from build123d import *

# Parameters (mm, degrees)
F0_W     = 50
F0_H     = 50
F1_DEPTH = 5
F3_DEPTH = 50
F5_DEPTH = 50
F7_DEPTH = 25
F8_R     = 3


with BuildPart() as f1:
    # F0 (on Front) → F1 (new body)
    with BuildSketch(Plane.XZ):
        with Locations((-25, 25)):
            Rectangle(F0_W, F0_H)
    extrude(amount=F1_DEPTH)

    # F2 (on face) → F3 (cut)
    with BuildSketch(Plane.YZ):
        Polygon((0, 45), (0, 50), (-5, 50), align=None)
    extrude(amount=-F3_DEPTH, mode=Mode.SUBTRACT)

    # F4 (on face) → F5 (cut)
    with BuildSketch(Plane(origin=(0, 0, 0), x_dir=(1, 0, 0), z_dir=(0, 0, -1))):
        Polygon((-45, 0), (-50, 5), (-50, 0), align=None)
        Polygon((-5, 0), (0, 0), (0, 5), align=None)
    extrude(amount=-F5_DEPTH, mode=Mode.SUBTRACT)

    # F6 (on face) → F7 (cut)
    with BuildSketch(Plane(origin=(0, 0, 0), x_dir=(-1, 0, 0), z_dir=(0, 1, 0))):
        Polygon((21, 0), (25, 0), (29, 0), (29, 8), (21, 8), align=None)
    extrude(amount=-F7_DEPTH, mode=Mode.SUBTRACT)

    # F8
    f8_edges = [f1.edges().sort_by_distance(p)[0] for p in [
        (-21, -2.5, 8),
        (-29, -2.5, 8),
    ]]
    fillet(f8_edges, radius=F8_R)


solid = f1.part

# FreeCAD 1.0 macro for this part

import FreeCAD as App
import Part
import Sketcher


def edges_at(feature, points):
    """Names of the edges that pass closest to the given points."""
    edges = feature.Shape.Edges
    near = lambda p: min(range(len(edges)), key=lambda i: edges[i].distToShape(Part.Vertex(*p))[0])
    return sorted({f"Edge{near(p) + 1}" for p in points})

doc = App.newDocument("Part")
params = doc.addObject("Spreadsheet::Sheet", "Params")
for row, (alias, value) in enumerate([
    ("sketch1_width", "50 mm"),
    ("pad1_length", "5 mm"),
    ("sketch2_width", "5 mm"),
    ("pocket1_length", "50 mm"),
    ("sketch3_width", "5 mm"),
    ("pocket2_length", "50 mm"),
    ("sketch4_width", "8 mm"),
    ("pocket3_length", "25 mm"),
    ("fillet_radius", "3 mm"),
], start=1):
    params.set(f"A{row}", alias)
    params.set(f"B{row}", "=" + value)
    params.setAlias(f"B{row}", alias)

body = doc.addObject("PartDesign::Body", "Body")

# Sketch on XZ plane
sketch1 = body.newObject("Sketcher::SketchObject", "Sketch")
sketch1.AttachmentSupport = (doc.getObject("XZ_Plane"), [""])
sketch1.MapMode = "FlatFace"
sketch1.addGeometry([
    Part.LineSegment(App.Vector(-50, 50, 0), App.Vector(-50, 0, 0)),
    Part.LineSegment(App.Vector(-50, 0, 0), App.Vector(0, 0, 0)),
    Part.LineSegment(App.Vector(0, 0, 0), App.Vector(0, 50, 0)),
    Part.LineSegment(App.Vector(0, 50, 0), App.Vector(-50, 50, 0)),
], False)
sketch1.addConstraint([
    Sketcher.Constraint("Coincident", 0, 2, 1, 1),
    Sketcher.Constraint("Coincident", 1, 2, 2, 1),
    Sketcher.Constraint("Coincident", 2, 2, 3, 1),
    Sketcher.Constraint("Coincident", 3, 2, 0, 1),
    Sketcher.Constraint("Vertical", 0),
    Sketcher.Constraint("Horizontal", 1),
    Sketcher.Constraint("Vertical", 2),
    Sketcher.Constraint("Horizontal", 3),
    Sketcher.Constraint("Coincident", 1, 2, -1, 1),
    Sketcher.Constraint("Equal", 3, 0),
    Sketcher.Constraint("DistanceX", 1, 1, 1, 2, 50.0),
])
sketch1.setExpression("Constraints[10]", "Params.sketch1_width")
pad1 = body.newObject("PartDesign::Pad", "Pad")
pad1.Profile = sketch1
pad1.setExpression("Length", "Params.pad1_length")

# Sketch on YZ plane
sketch2 = body.newObject("Sketcher::SketchObject", "Sketch001")
sketch2.AttachmentSupport = (doc.getObject("YZ_Plane"), [""])
sketch2.MapMode = "FlatFace"
sketch2.addGeometry([
    Part.LineSegment(App.Vector(0, 45, 0), App.Vector(0, 50, 0)),
    Part.LineSegment(App.Vector(0, 50, 0), App.Vector(-5, 50, 0)),
    Part.LineSegment(App.Vector(-5, 50, 0), App.Vector(0, 45, 0)),
], False)
sketch2.addConstraint([
    Sketcher.Constraint("Coincident", 0, 2, 1, 1),
    Sketcher.Constraint("Coincident", 1, 2, 2, 1),
    Sketcher.Constraint("Coincident", 2, 2, 0, 1),
    Sketcher.Constraint("Vertical", 0),
    Sketcher.Constraint("Horizontal", 1),
    Sketcher.Constraint("PointOnObject", 0, 2, -2),
    Sketcher.Constraint("Equal", 1, 0),
    Sketcher.Constraint("DistanceX", 1, 2, 1, 1, 5.0),
    Sketcher.Constraint("DistanceY", -1, 1, 0, 2, 50.0),
])
sketch2.setExpression("Constraints[7]", "Params.sketch2_width")
pocket1 = body.newObject("PartDesign::Pocket", "Pocket")
pocket1.Profile = sketch2
pocket1.setExpression("Length", "Params.pocket1_length")

# Sketch on XY plane
sketch3 = body.newObject("Sketcher::SketchObject", "Sketch002")
sketch3.AttachmentSupport = (doc.getObject("XY_Plane"), [""])
sketch3.MapMode = "FlatFace"
sketch3.addGeometry([
    Part.LineSegment(App.Vector(-45, 0, 0), App.Vector(-50, -5, 0)),  # 0
    Part.LineSegment(App.Vector(-50, -5, 0), App.Vector(-50, 0, 0)),  # 1
    Part.LineSegment(App.Vector(-50, 0, 0), App.Vector(-45, 0, 0)),  # 2
    Part.LineSegment(App.Vector(-5, 0, 0), App.Vector(0, 0, 0)),  # 3
    Part.LineSegment(App.Vector(0, 0, 0), App.Vector(0, -5, 0)),  # 4
    Part.LineSegment(App.Vector(0, -5, 0), App.Vector(-5, 0, 0)),  # 5
], False)
sketch3.addConstraint([
    Sketcher.Constraint("Coincident", 0, 2, 1, 1),
    Sketcher.Constraint("Coincident", 1, 2, 2, 1),
    Sketcher.Constraint("Coincident", 2, 2, 0, 1),
    Sketcher.Constraint("Coincident", 3, 2, 4, 1),
    Sketcher.Constraint("Coincident", 4, 2, 5, 1),
    Sketcher.Constraint("Coincident", 5, 2, 3, 1),
    Sketcher.Constraint("Vertical", 1),
    Sketcher.Constraint("Horizontal", 2),
    Sketcher.Constraint("Horizontal", 3),
    Sketcher.Constraint("Vertical", 4),
    Sketcher.Constraint("Coincident", 3, 2, -1, 1),
    Sketcher.Constraint("PointOnObject", 1, 2, -1),
    Sketcher.Constraint("Perpendicular", 0, 5),
    Sketcher.Constraint("Horizontal", 0, 2, 4, 2),
    Sketcher.Constraint("Equal", 2, 3),
    Sketcher.Constraint("DistanceX", 2, 1, 2, 2, 5.0),
    Sketcher.Constraint("DistanceX", 0, 2, -1, 1, 50.0),
])
sketch3.setExpression("Constraints[15]", "Params.sketch3_width")
pocket2 = body.newObject("PartDesign::Pocket", "Pocket001")
pocket2.Profile = sketch3
pocket2.setExpression("Length", "Params.pocket2_length")
pocket2.Reversed = True

# Sketch on XZ plane
sketch4 = body.newObject("Sketcher::SketchObject", "Sketch003")
sketch4.AttachmentSupport = (doc.getObject("XZ_Plane"), [""])
sketch4.MapMode = "FlatFace"
sketch4.addGeometry([
    Part.LineSegment(App.Vector(-21, 0, 0), App.Vector(-29, 0, 0)),
    Part.LineSegment(App.Vector(-29, 0, 0), App.Vector(-29, 8, 0)),
    Part.LineSegment(App.Vector(-29, 8, 0), App.Vector(-21, 8, 0)),
    Part.LineSegment(App.Vector(-21, 8, 0), App.Vector(-21, 0, 0)),
], False)
sketch4.addConstraint([
    Sketcher.Constraint("Coincident", 0, 2, 1, 1),
    Sketcher.Constraint("Coincident", 1, 2, 2, 1),
    Sketcher.Constraint("Coincident", 2, 2, 3, 1),
    Sketcher.Constraint("Coincident", 3, 2, 0, 1),
    Sketcher.Constraint("Horizontal", 0),
    Sketcher.Constraint("Vertical", 1),
    Sketcher.Constraint("Horizontal", 2),
    Sketcher.Constraint("Vertical", 3),
    Sketcher.Constraint("PointOnObject", 0, 2, -1),
    Sketcher.Constraint("Equal", 2, 1),
    Sketcher.Constraint("DistanceX", 0, 2, 0, 1, 8.0),
    Sketcher.Constraint("DistanceX", 0, 2, -1, 1, 29.0),
])
sketch4.setExpression("Constraints[10]", "Params.sketch4_width")
pocket3 = body.newObject("PartDesign::Pocket", "Pocket002")
pocket3.Profile = sketch4
pocket3.setExpression("Length", "Params.pocket3_length")
pocket3.Reversed = True
doc.recompute()

fillet = body.newObject("PartDesign::Fillet", "Fillet")
fillet.Base = (pocket3, edges_at(pocket3, [(-21, -2.5, 8), (-29, -2.5, 8)]))
fillet.setExpression("Radius", "Params.fillet_radius")

doc.recompute()
